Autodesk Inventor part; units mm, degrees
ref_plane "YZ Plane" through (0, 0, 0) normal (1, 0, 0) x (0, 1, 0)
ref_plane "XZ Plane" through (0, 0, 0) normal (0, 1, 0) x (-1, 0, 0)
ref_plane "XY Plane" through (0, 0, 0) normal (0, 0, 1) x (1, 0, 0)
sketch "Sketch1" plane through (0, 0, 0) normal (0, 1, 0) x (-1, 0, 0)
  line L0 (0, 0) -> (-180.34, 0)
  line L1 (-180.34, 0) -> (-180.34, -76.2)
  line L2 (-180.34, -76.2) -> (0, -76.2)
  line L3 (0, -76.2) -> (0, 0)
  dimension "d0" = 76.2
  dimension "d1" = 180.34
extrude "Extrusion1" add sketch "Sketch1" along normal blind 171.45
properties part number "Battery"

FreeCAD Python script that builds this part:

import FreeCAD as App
import Part
import Sketcher

V = App.Vector
Q = App.Units.Quantity


def add_polygon(sketch, points):
    """Adds a closed chain of lines whose ends are joined by coincident constraints."""
    first, n = sketch.GeometryCount, len(points)
    for a, b in zip(points, points[1:] + points[:1]):
        sketch.addGeometry(Part.LineSegment(App.Vector(*a, 0), App.Vector(*b, 0)), False)
    for i in range(n):
        sketch.addConstraint(Sketcher.Constraint("Coincident", first + i, 2, first + (i + 1) % n, 1))

doc = App.newDocument("Part")
body = doc.addObject("PartDesign::Body", "Body")

# Sketch on XZ plane
sketch1 = doc.addObject("Sketcher::SketchObject", "Sketch")
body.addObject(sketch1)
sketch1.AttachmentSupport = (doc.XZ_Plane, [""])
sketch1.MapMode = "FlatFace"
add_polygon(sketch1, [(0, -76.2), (0, 0), (180.34, 0), (180.34, -76.2)])  # lines 0-3
sketch1.addConstraint([
    Sketcher.Constraint("Vertical", 0),
    Sketcher.Constraint("Horizontal", 1),
    Sketcher.Constraint("Vertical", 2),
    Sketcher.Constraint("Horizontal", 3),
    Sketcher.Constraint("Coincident", 0, 2, -1, 1),
    Sketcher.Constraint("DistanceY", 0, 1, 0, 2, Q("3 in")),
    Sketcher.Constraint("DistanceX", 1, 1, 1, 2, Q("7.1 in")),
])
pad1 = doc.addObject("PartDesign::Pad", "Pad")
body.addObject(pad1)
pad1.Profile = sketch1
pad1.Length = Q("6.75 in")
pad1.Reversed = True

doc.recompute()
